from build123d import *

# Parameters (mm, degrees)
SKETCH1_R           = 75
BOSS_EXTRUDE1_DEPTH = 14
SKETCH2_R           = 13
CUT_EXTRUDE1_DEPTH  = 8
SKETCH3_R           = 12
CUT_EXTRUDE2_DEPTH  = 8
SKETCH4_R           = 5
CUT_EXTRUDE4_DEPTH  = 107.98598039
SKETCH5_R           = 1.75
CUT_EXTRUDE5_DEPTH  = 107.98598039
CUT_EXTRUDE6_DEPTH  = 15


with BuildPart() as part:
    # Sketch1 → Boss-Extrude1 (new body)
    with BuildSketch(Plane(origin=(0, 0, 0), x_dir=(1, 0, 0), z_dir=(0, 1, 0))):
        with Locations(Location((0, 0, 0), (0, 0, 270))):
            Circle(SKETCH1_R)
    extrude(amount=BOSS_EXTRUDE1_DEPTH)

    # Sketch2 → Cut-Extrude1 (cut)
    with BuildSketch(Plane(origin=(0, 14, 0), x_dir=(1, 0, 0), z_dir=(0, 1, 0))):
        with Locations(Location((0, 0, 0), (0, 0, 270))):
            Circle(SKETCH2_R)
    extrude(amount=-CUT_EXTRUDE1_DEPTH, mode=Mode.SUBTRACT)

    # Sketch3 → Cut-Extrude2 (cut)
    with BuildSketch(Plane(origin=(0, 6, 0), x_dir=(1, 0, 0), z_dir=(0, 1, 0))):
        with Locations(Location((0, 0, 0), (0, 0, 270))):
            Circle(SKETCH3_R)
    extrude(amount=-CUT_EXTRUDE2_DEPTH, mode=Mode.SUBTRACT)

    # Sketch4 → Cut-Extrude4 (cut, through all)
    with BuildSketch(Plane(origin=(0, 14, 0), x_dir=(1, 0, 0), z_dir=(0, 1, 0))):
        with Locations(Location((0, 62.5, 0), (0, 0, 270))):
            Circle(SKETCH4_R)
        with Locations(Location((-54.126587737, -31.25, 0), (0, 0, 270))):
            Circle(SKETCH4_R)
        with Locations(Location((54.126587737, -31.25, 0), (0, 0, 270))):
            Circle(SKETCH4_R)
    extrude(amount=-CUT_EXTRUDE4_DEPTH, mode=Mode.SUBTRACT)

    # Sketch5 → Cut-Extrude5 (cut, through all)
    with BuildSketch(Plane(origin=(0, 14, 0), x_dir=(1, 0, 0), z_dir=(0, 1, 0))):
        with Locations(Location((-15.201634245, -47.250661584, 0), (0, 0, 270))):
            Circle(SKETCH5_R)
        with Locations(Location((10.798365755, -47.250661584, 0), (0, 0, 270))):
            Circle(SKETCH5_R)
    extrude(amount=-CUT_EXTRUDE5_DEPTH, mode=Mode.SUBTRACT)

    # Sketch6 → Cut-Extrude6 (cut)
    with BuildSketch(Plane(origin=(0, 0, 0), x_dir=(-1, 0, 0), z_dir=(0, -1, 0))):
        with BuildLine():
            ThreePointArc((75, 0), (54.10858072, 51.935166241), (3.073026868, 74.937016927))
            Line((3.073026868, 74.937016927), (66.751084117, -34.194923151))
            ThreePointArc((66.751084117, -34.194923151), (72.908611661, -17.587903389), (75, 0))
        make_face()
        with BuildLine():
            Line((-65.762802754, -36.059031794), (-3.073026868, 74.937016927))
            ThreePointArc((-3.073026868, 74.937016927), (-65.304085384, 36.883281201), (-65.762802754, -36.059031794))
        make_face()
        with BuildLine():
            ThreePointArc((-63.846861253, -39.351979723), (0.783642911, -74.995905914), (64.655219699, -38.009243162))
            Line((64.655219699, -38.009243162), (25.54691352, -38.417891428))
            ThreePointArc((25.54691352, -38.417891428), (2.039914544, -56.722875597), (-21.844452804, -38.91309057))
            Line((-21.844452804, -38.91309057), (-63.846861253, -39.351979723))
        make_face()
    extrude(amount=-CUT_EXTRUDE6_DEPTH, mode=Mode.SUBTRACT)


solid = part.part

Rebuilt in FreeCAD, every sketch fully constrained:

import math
import FreeCAD as App
import Part
import Sketcher
Q = App.Units.Quantity

doc = App.newDocument("Part")
params = doc.addObject("Spreadsheet::Sheet", "Params")
for row, (alias, value) in enumerate([
    ("sketch1_diameter", "150 mm"),
    ("pad1_length", "14 mm"),
    ("sketch2_diameter", "26 mm"),
    ("pocket1_length", "8 mm"),
    ("sketch3_diameter", "24 mm"),
    ("pocket2_length", "8 mm"),
    ("sketch4_diameter", "10 mm"),
    ("sketch5_diameter", "3.5 mm"),
    ("sketch6_radius", "75 mm"),
    ("pocket5_length", "15 mm"),
], start=1):
    params.set(f"A{row}", alias)
    params.set(f"B{row}", "=" + value)
    params.setAlias(f"B{row}", alias)

body = doc.addObject("PartDesign::Body", "Body")

sketch1 = doc.addObject("Sketcher::SketchObject", "Sketch")
body.addObject(sketch1)
sketch1.AttachmentSupport = (doc.XZ_Plane, [""])
sketch1.MapMode = "FlatFace"
sketch1.addGeometry(Part.Circle(App.Vector(0, 0, 0), App.Vector(0, 0, 1), 75), False)
sketch1.addConstraint([
    Sketcher.Constraint("Coincident", 0, 3, -1, 1),
    Sketcher.Constraint("Diameter", 0, Q("150 mm")),
])
sketch1.setExpression("Constraints[1]", "Params.sketch1_diameter")
pad1 = doc.addObject("PartDesign::Pad", "Pad")
body.addObject(pad1)
pad1.Profile = sketch1
pad1.setExpression("Length", "Params.pad1_length")
pad1.Reversed = True

sketch2 = doc.addObject("Sketcher::SketchObject", "Sketch001")
body.addObject(sketch2)
sketch2.AttachmentSupport = (doc.XZ_Plane, [""])
sketch2.MapMode = "FlatFace"
sketch2.AttachmentOffset = App.Placement(App.Vector(0, 0, -14), App.Rotation())
sketch2.addGeometry(Part.Circle(App.Vector(0, 0, 0), App.Vector(0, 0, 1), 13), False)
sketch2.addConstraint([
    Sketcher.Constraint("Coincident", 0, 3, -1, 1),
    Sketcher.Constraint("Diameter", 0, Q("26 mm")),
])
sketch2.setExpression("Constraints[1]", "Params.sketch2_diameter")
pocket1 = doc.addObject("PartDesign::Pocket", "Pocket")
body.addObject(pocket1)
pocket1.Profile = sketch2
pocket1.setExpression("Length", "Params.pocket1_length")
pocket1.Reversed = True

sketch3 = doc.addObject("Sketcher::SketchObject", "Sketch002")
body.addObject(sketch3)
sketch3.AttachmentSupport = (doc.XZ_Plane, [""])
sketch3.MapMode = "FlatFace"
sketch3.AttachmentOffset = App.Placement(App.Vector(0, 0, -6), App.Rotation())
sketch3.addGeometry(Part.Circle(App.Vector(0, 0, 0), App.Vector(0, 0, 1), 12), False)
sketch3.addConstraint([
    Sketcher.Constraint("Coincident", 0, 3, -1, 1),
    Sketcher.Constraint("Diameter", 0, Q("24 mm")),
])
sketch3.setExpression("Constraints[1]", "Params.sketch3_diameter")
pocket2 = doc.addObject("PartDesign::Pocket", "Pocket001")
body.addObject(pocket2)
pocket2.Profile = sketch3
pocket2.setExpression("Length", "Params.pocket2_length")
pocket2.Reversed = True

sketch4 = doc.addObject("Sketcher::SketchObject", "Sketch003")
body.addObject(sketch4)
sketch4.AttachmentSupport = (doc.XZ_Plane, [""])
sketch4.MapMode = "FlatFace"
sketch4.AttachmentOffset = App.Placement(App.Vector(0, 0, -14), App.Rotation())
sketch4.addGeometry([
    Part.Circle(App.Vector(0, -62, 0), App.Vector(0, 0, 1), 5),
    Part.Circle(App.Vector(-54, 31, 0), App.Vector(0, 0, 1), 5),
    Part.Circle(App.Vector(54, 31, 0), App.Vector(0, 0, 1), 5),
], False)
sketch4.addConstraint([
    Sketcher.Constraint("Equal", 0, 1),
    Sketcher.Constraint("Equal", 1, 2),
    Sketcher.Constraint("Symmetric", 1, 3, 2, 3, -2),
    Sketcher.Constraint("PointOnObject", 0, 3, -2),
    Sketcher.Constraint("Diameter", 0, Q("10 mm")),
    Sketcher.Constraint("DistanceY", 0, 3, -1, 1, Q("62.5 mm")),
    Sketcher.Constraint("DistanceY", -1, 1, 1, 3, Q("31.25 mm")),
    Sketcher.Constraint("DistanceX", 1, 3, -1, 1, Q("54.126588 mm")),
])
sketch4.setExpression("Constraints[4]", "Params.sketch4_diameter")
pocket3 = doc.addObject("PartDesign::Pocket", "Pocket002")
body.addObject(pocket3)
pocket3.Profile = sketch4
pocket3.Type = "ThroughAll"
pocket3.Reversed = True

sketch5 = doc.addObject("Sketcher::SketchObject", "Sketch004")
body.addObject(sketch5)
sketch5.AttachmentSupport = (doc.XZ_Plane, [""])
sketch5.MapMode = "FlatFace"
sketch5.AttachmentOffset = App.Placement(App.Vector(0, 0, -14), App.Rotation())
sketch5.addGeometry([
    Part.Circle(App.Vector(-15.2, 47.3, 0), App.Vector(0, 0, 1), 1.8),
    Part.Circle(App.Vector(10.8, 47.3, 0), App.Vector(0, 0, 1), 1.8),
], False)
sketch5.addConstraint([
    Sketcher.Constraint("Equal", 0, 1),
    Sketcher.Constraint("Horizontal", 0, 3, 1, 3),
    Sketcher.Constraint("Diameter", 0, Q("3.5 mm")),
    Sketcher.Constraint("DistanceX", 0, 3, 1, 3, Q("26 mm")),
    Sketcher.Constraint("DistanceY", -1, 1, 0, 3, Q("47.250662 mm")),
    Sketcher.Constraint("DistanceX", 0, 3, -1, 1, Q("15.201634 mm")),
])
sketch5.setExpression("Constraints[2]", "Params.sketch5_diameter")
pocket4 = doc.addObject("PartDesign::Pocket", "Pocket003")
body.addObject(pocket4)
pocket4.Profile = sketch5
pocket4.Type = "ThroughAll"
pocket4.Reversed = True

sketch6 = doc.addObject("Sketcher::SketchObject", "Sketch005")
body.addObject(sketch6)
sketch6.AttachmentSupport = (doc.XZ_Plane, [""])
sketch6.MapMode = "FlatFace"
sketch6.addGeometry([
    Part.ArcOfCircle(Part.Circle(App.Vector(0, 0, 0), App.Vector(0, 0, 1), 75), math.radians(180), math.radians(268)),
    Part.LineSegment(App.Vector(-3, -75, 0), App.Vector(-67, 34, 0)),
    Part.ArcOfCircle(Part.Circle(App.Vector(0, 0, 0), App.Vector(0, 0, 1), 75), math.radians(153), math.radians(180)),
    Part.LineSegment(App.Vector(66, 36, 0), App.Vector(3, -75, 0)),
    Part.ArcOfCircle(Part.Circle(App.Vector(0, 0, 0), App.Vector(0, 0, 1), 75), math.radians(-88), math.radians(29)),
    Part.ArcOfCircle(Part.Circle(App.Vector(0, 0, 0), App.Vector(0, 0, 1), 75), math.radians(32), math.radians(150)),
    Part.LineSegment(App.Vector(-65, 38, 0), App.Vector(-26, 38, 0)),
    Part.ArcOfCircle(Part.Circle(App.Vector(-2, 32, 0), App.Vector(0, 0, 1), 25), math.radians(16), math.radians(165)),
    Part.LineSegment(App.Vector(22, 39, 0), App.Vector(64, 39, 0)),
], False)
sketch6.addConstraint([
    Sketcher.Constraint("Coincident", 0, 2, 1, 1),
    Sketcher.Constraint("Coincident", 1, 2, 2, 1),
    Sketcher.Constraint("Tangent", 2, 2, 0, 1),
    Sketcher.Constraint("Coincident", 3, 1, 4, 2),
    Sketcher.Constraint("Coincident", 4, 1, 3, 2),
    Sketcher.Constraint("Coincident", 5, 2, 6, 1),
    Sketcher.Constraint("Coincident", 6, 2, 7, 2),
    Sketcher.Constraint("Coincident", 7, 1, 8, 1),
    Sketcher.Constraint("Coincident", 8, 2, 5, 1),
    Sketcher.Constraint("Coincident", 0, 3, -1, 1),
    Sketcher.Constraint("Coincident", 4, 3, -1, 1),
    Sketcher.Constraint("Coincident", 5, 3, -1, 1),
    Sketcher.Constraint("Equal", 0, 2),
    Sketcher.Constraint("Equal", 2, 4),
    Sketcher.Constraint("Equal", 4, 5),
    Sketcher.Constraint("PointOnObject", 2, 2, -1),
    Sketcher.Constraint("Parallel", 6, 8),
    Sketcher.Constraint("Horizontal", 0, 2, 4, 1),
    Sketcher.Constraint("Radius", 0, Q("75 mm")),
    Sketcher.Constraint("Distance", 3, Q("127.476001 mm")),
    Sketcher.Constraint("Radius", 7, Q("24.577285 mm")),
    Sketcher.Constraint("Distance", 8, Q("42.004701 mm")),
    Sketcher.Constraint("DistanceY", 7, 3, 3, 1, Q("3.9121 mm")),
    Sketcher.Constraint("Distance", 6, Q("39.110441 mm")),
    Sketcher.Constraint("DistanceY", -1, 1, 7, 3, Q("32.146932 mm")),
    Sketcher.Constraint("DistanceX", 5, 2, -1, 1, Q("64.65522 mm")),
    Sketcher.Constraint("DistanceY", -1, 1, 6, 2, Q("38.417891 mm")),
    Sketcher.Constraint("DistanceY", 7, 3, 1, 2, Q("2.047991 mm")),
])
sketch6.setExpression("Constraints[18]", "Params.sketch6_radius")
pocket5 = doc.addObject("PartDesign::Pocket", "Pocket004")
body.addObject(pocket5)
pocket5.Profile = sketch6
pocket5.setExpression("Length", "Params.pocket5_length")

doc.recompute()
